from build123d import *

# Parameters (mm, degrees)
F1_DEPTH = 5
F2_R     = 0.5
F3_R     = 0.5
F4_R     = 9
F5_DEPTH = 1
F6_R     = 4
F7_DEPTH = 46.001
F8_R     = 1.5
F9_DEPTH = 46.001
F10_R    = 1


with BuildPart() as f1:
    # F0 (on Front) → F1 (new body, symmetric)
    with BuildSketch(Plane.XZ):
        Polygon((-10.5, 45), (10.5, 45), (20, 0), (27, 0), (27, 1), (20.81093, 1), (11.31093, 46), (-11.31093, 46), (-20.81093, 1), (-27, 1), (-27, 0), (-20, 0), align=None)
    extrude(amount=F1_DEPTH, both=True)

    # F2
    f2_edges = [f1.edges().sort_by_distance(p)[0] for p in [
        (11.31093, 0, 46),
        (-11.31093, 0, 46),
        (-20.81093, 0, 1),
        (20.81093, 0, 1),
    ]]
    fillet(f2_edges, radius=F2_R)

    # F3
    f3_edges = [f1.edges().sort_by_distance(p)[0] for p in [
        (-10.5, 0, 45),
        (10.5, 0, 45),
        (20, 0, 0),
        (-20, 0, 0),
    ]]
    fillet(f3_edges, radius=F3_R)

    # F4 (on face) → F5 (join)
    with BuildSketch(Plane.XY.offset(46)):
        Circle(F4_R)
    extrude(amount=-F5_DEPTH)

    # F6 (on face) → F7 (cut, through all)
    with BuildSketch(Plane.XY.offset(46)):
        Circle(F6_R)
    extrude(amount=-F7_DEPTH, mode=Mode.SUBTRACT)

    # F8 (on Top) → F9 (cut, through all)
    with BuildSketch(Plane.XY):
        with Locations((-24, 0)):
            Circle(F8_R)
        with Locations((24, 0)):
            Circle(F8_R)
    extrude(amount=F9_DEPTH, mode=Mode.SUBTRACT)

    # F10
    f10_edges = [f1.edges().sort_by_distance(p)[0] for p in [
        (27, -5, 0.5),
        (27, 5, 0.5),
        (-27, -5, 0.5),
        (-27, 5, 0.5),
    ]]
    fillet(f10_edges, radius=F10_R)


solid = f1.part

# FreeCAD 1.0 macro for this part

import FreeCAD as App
import Part
import Sketcher

V = App.Vector


def edges_at(feature, points):
    """Names of the edges that pass closest to the given points."""
    edges = feature.Shape.Edges
    near = lambda p: min(range(len(edges)), key=lambda i: edges[i].distToShape(Part.Vertex(*p))[0])
    return sorted({f"Edge{near(p) + 1}" for p in points})


def add_polygon(sketch, points):
    """Adds a closed chain of lines whose ends are joined by coincident constraints."""
    first, n = sketch.GeometryCount, len(points)
    for a, b in zip(points, points[1:] + points[:1]):
        sketch.addGeometry(Part.LineSegment(App.Vector(*a, 0), App.Vector(*b, 0)), False)
    for i in range(n):
        sketch.addConstraint(Sketcher.Constraint("Coincident", first + i, 2, first + (i + 1) % n, 1))

doc = App.newDocument("Part")
body = doc.addObject("PartDesign::Body", "Body")

sketch1 = body.newObject("Sketcher::SketchObject", "Sketch")
sketch1.AttachmentSupport = (doc.getObject("XZ_Plane"), [""])
sketch1.MapMode = "FlatFace"
add_polygon(sketch1, [(-10.5, 45), (10.5, 45), (20, 0), (27, 0), (27, 1), (20.8, 1), (11.3, 46), (-11.3, 46), (-20.8, 1), (-27, 1), (-27, 0), (-20, 0)])
sketch1.addConstraint(Sketcher.Constraint("Horizontal", 0))
sketch1.addConstraint(Sketcher.Constraint("Horizontal", 2))
sketch1.addConstraint(Sketcher.Constraint("Vertical", 3))
sketch1.addConstraint(Sketcher.Constraint("Horizontal", 4))
sketch1.addConstraint(Sketcher.Constraint("Horizontal", 6))
sketch1.addConstraint(Sketcher.Constraint("Horizontal", 8))
sketch1.addConstraint(Sketcher.Constraint("Vertical", 9))
sketch1.addConstraint(Sketcher.Constraint("Horizontal", 10))
sketch1.addConstraint(Sketcher.Constraint("Symmetric", 2, 2, 9, 2, -1, 1))
sketch1.addConstraint(Sketcher.Constraint("Symmetric", 4, 2, 7, 2, -2))
sketch1.addConstraint(Sketcher.Constraint("Symmetric", 1, 2, 10, 2, -2))
sketch1.addConstraint(Sketcher.Constraint("Parallel", 1, 5))
sketch1.addConstraint(Sketcher.Constraint("Parallel", 7, 11))
sketch1.addConstraint(Sketcher.Constraint("Equal", 1, 5))
sketch1.addConstraint(Sketcher.Constraint("Equal", 5, 7))
sketch1.addConstraint(Sketcher.Constraint("DistanceX", 0, 1, 0, 2, 21.0))
sketch1.addConstraint(Sketcher.Constraint("DistanceX", 2, 1, 2, 2, 7.0))
sketch1.addConstraint(Sketcher.Constraint("DistanceY", 3, 1, 3, 2, 1.0))
sketch1.addConstraint(Sketcher.Constraint("DistanceY", -1, 1, 0, 2, 45.0))
sketch1.addConstraint(Sketcher.Constraint("DistanceX", -1, 1, 1, 2, 20.0))
sketch1.addConstraint(Sketcher.Constraint("DistanceX", 4, 2, 4, 1, 6.18907))
pad1 = body.newObject("PartDesign::Pad", "Pad")
pad1.Profile = sketch1
pad1.Length = 10
pad1.Midplane = True
doc.recompute()

fillet = body.newObject("PartDesign::Fillet", "Fillet")
fillet.Base = (pad1, edges_at(pad1, [
    (11.311, 0, 46),
    (-11.311, 0, 46),
    (-20.811, 0, 1),
    (20.811, 0, 1),
]))
fillet.Radius = 0.5
doc.recompute()

fillet2 = body.newObject("PartDesign::Fillet", "Fillet001")
fillet2.Base = (fillet, edges_at(fillet, [
    (-10.5, 0, 45),
    (10.5, 0, 45),
    (20, 0, 0),
    (-20, 0, 0),
]))
fillet2.Radius = 0.5

sketch2 = body.newObject("Sketcher::SketchObject", "Sketch001")
sketch2.AttachmentSupport = (doc.getObject("XY_Plane"), [""])
sketch2.MapMode = "FlatFace"
sketch2.AttachmentOffset = App.Placement(V(0, 0, 46), App.Rotation())
sketch2.addGeometry(Part.Circle(V(0, 0, 0), V(0, 0, 1), 9), False)
sketch2.addConstraint(Sketcher.Constraint("Coincident", 0, 3, -1, 1))
sketch2.addConstraint(Sketcher.Constraint("Diameter", 0, 18.0))
pad2 = body.newObject("PartDesign::Pad", "Pad001")
pad2.Profile = sketch2
pad2.Length = 1
pad2.Reversed = True

sketch3 = body.newObject("Sketcher::SketchObject", "Sketch002")
sketch3.AttachmentSupport = (doc.getObject("XY_Plane"), [""])
sketch3.MapMode = "FlatFace"
sketch3.AttachmentOffset = App.Placement(V(0, 0, 46), App.Rotation())
sketch3.addGeometry(Part.Circle(V(0, 0, 0), V(0, 0, 1), 4), False)
sketch3.addConstraint(Sketcher.Constraint("Coincident", 0, 3, -1, 1))
sketch3.addConstraint(Sketcher.Constraint("Diameter", 0, 8.0))
pocket1 = body.newObject("PartDesign::Pocket", "Pocket")
pocket1.Profile = sketch3
pocket1.Type = "ThroughAll"

sketch4 = body.newObject("Sketcher::SketchObject", "Sketch003")
sketch4.AttachmentSupport = (doc.getObject("XY_Plane"), [""])
sketch4.MapMode = "FlatFace"
sketch4.addGeometry(Part.Circle(V(-24, 0, 0), V(0, 0, 1), 1.5), False)
sketch4.addGeometry(Part.Circle(V(24, 0, 0), V(0, 0, 1), 1.5), False)
sketch4.addConstraint(Sketcher.Constraint("Equal", 0, 1))
sketch4.addConstraint(Sketcher.Constraint("Symmetric", 0, 3, 1, 3, -1, 1))
sketch4.addConstraint(Sketcher.Constraint("PointOnObject", 0, 3, -1))
sketch4.addConstraint(Sketcher.Constraint("Diameter", 0, 3.0))
sketch4.addConstraint(Sketcher.Constraint("DistanceX", 0, 3, -1, 1, 24.0))
pocket2 = body.newObject("PartDesign::Pocket", "Pocket001")
pocket2.Profile = sketch4
pocket2.Type = "ThroughAll"
pocket2.Reversed = True
doc.recompute()

fillet3 = body.newObject("PartDesign::Fillet", "Fillet002")
fillet3.Base = (pocket2, edges_at(pocket2, [
    (27, -5, 0.5),
    (27, 5, 0.5),
    (-27, -5, 0.5),
    (-27, 5, 0.5),
]))
fillet3.Radius = 1

doc.recompute()
